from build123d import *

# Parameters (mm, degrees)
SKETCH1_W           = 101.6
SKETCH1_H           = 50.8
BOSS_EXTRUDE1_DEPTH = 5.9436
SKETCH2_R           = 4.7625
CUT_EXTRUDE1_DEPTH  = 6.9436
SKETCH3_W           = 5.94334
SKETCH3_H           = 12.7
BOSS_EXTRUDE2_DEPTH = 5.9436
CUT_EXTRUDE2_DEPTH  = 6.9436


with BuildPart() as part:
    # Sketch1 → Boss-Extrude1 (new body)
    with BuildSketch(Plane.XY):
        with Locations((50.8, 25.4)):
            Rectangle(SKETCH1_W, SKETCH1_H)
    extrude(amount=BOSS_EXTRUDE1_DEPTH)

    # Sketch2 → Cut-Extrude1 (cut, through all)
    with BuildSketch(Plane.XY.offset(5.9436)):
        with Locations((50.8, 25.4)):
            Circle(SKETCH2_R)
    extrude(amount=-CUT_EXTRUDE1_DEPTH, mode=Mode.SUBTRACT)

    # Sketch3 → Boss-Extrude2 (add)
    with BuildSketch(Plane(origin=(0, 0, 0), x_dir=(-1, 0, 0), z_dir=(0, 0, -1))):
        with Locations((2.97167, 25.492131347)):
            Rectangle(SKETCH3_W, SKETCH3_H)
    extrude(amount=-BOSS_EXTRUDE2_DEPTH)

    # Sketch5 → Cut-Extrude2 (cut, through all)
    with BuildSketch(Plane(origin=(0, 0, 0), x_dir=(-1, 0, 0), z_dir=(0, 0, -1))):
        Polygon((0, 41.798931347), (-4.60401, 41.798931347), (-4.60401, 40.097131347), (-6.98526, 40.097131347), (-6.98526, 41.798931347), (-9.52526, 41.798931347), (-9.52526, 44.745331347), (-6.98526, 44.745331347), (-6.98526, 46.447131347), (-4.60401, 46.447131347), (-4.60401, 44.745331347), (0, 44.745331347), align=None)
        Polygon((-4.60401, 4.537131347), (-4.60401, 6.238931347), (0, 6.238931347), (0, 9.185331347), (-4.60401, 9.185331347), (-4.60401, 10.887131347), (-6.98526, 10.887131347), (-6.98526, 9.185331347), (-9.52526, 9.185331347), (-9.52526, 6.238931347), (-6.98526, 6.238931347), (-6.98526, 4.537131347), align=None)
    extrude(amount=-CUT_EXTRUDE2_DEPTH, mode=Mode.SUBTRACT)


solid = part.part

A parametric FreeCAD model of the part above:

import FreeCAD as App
import Part
import Sketcher
Q = App.Units.Quantity

doc = App.newDocument("Part")
body = doc.addObject("PartDesign::Body", "Body")

# Sketch on XY plane
sketch1 = doc.addObject("Sketcher::SketchObject", "Sketch")
body.addObject(sketch1)
sketch1.AttachmentSupport = (doc.XY_Plane, [""])
sketch1.MapMode = "FlatFace"
sketch1.addGeometry([
    Part.LineSegment(App.Vector(0, 50.8, 0), App.Vector(0, 0, 0)),
    Part.LineSegment(App.Vector(0, 0, 0), App.Vector(101.6, 0, 0)),
    Part.LineSegment(App.Vector(101.6, 0, 0), App.Vector(101.6, 50.8, 0)),
    Part.LineSegment(App.Vector(101.6, 50.8, 0), App.Vector(0, 50.8, 0)),
], False)
sketch1.addConstraint([
    Sketcher.Constraint("Coincident", 0, 2, 1, 1),
    Sketcher.Constraint("Coincident", 1, 2, 2, 1),
    Sketcher.Constraint("Coincident", 2, 2, 3, 1),
    Sketcher.Constraint("Coincident", 3, 2, 0, 1),
    Sketcher.Constraint("Vertical", 0),
    Sketcher.Constraint("Horizontal", 1),
    Sketcher.Constraint("Vertical", 2),
    Sketcher.Constraint("Horizontal", 3),
    Sketcher.Constraint("Coincident", 0, 2, -1, 1),
    Sketcher.Constraint("DistanceX", 1, 1, 1, 2, Q("4 in")),
    Sketcher.Constraint("DistanceY", 0, 2, 0, 1, Q("2 in")),
])
pad1 = doc.addObject("PartDesign::Pad", "Pad")
body.addObject(pad1)
pad1.Profile = sketch1
pad1.Length = Q("0.234 in")

# Sketch on XY plane
sketch2 = doc.addObject("Sketcher::SketchObject", "Sketch001")
body.addObject(sketch2)
sketch2.AttachmentSupport = (doc.XY_Plane, [""])
sketch2.MapMode = "FlatFace"
sketch2.AttachmentOffset = App.Placement(App.Vector(0, 0, 0.234 * 25.4), App.Rotation())
sketch2.addGeometry(Part.Circle(App.Vector(50.8, 25.4, 0), App.Vector(0, 0, 1), 4.7625), False)
sketch2.addConstraint([
    Sketcher.Constraint("Diameter", 0, Q("0.375 in")),
    Sketcher.Constraint("DistanceX", -1, 1, 0, 3, Q("2 in")),
    Sketcher.Constraint("DistanceY", -1, 1, 0, 3, Q("1 in")),
])
pocket1 = doc.addObject("PartDesign::Pocket", "Pocket")
body.addObject(pocket1)
pocket1.Profile = sketch2
pocket1.Type = "ThroughAll"

# Sketch on XY plane
sketch3 = doc.addObject("Sketcher::SketchObject", "Sketch002")
body.addObject(sketch3)
sketch3.AttachmentSupport = (doc.XY_Plane, [""])
sketch3.MapMode = "FlatFace"
sketch3.addGeometry([
    Part.LineSegment(App.Vector(0, 31.842131, 0), App.Vector(0, 19.142131, 0)),
    Part.LineSegment(App.Vector(0, 19.142131, 0), App.Vector(-5.94334, 19.142131, 0)),
    Part.LineSegment(App.Vector(-5.94334, 19.142131, 0), App.Vector(-5.94334, 31.842131, 0)),
    Part.LineSegment(App.Vector(-5.94334, 31.842131, 0), App.Vector(0, 31.842131, 0)),
], False)
sketch3.addConstraint([
    Sketcher.Constraint("Coincident", 0, 2, 1, 1),
    Sketcher.Constraint("Coincident", 1, 2, 2, 1),
    Sketcher.Constraint("Coincident", 2, 2, 3, 1),
    Sketcher.Constraint("Coincident", 3, 2, 0, 1),
    Sketcher.Constraint("Vertical", 0),
    Sketcher.Constraint("Horizontal", 1),
    Sketcher.Constraint("Vertical", 2),
    Sketcher.Constraint("Horizontal", 3),
    Sketcher.Constraint("PointOnObject", 0, 2, -2),
    Sketcher.Constraint("DistanceY", 0, 2, 0, 1, Q("0.5 in")),
    Sketcher.Constraint("DistanceX", 1, 2, 1, 1, 5.94334),
    Sketcher.Constraint("DistanceY", -1, 1, 0, 2, 19.142131),
])
pad2 = doc.addObject("PartDesign::Pad", "Pad001")
body.addObject(pad2)
pad2.Profile = sketch3
pad2.Length = Q("0.234 in")

# Sketch on XY plane
sketch4 = doc.addObject("Sketcher::SketchObject", "Sketch003")
body.addObject(sketch4)
sketch4.AttachmentSupport = (doc.XY_Plane, [""])
sketch4.MapMode = "FlatFace"
sketch4.addGeometry([
    Part.LineSegment(App.Vector(4.60401, 41.798931, 0), App.Vector(0, 41.798931, 0)),  # 0
    Part.LineSegment(App.Vector(0, 41.798931, 0), App.Vector(0, 44.745331, 0)),  # 1
    Part.LineSegment(App.Vector(0, 44.745331, 0), App.Vector(4.60401, 44.745331, 0)),  # 2
    Part.LineSegment(App.Vector(4.60401, 44.745331, 0), App.Vector(4.60401, 46.447131, 0)),  # 3
    Part.LineSegment(App.Vector(4.60401, 46.447131, 0), App.Vector(6.98526, 46.447131, 0)),  # 4
    Part.LineSegment(App.Vector(6.98526, 46.447131, 0), App.Vector(6.98526, 44.745331, 0)),  # 5
    Part.LineSegment(App.Vector(6.98526, 44.745331, 0), App.Vector(9.52526, 44.745331, 0)),  # 6
    Part.LineSegment(App.Vector(9.52526, 44.745331, 0), App.Vector(9.52526, 41.798931, 0)),  # 7
    Part.LineSegment(App.Vector(9.52526, 41.798931, 0), App.Vector(6.98526, 41.798931, 0)),  # 8
    Part.LineSegment(App.Vector(6.98526, 41.798931, 0), App.Vector(6.98526, 40.097131, 0)),  # 9
    Part.LineSegment(App.Vector(6.98526, 40.097131, 0), App.Vector(4.60401, 40.097131, 0)),  # 10
    Part.LineSegment(App.Vector(4.60401, 40.097131, 0), App.Vector(4.60401, 41.798931, 0)),  # 11
    Part.LineSegment(App.Vector(4.60401, 4.537131, 0), App.Vector(4.60401, 6.238931, 0)),  # 12
    Part.LineSegment(App.Vector(4.60401, 6.238931, 0), App.Vector(0, 6.238931, 0)),  # 13
    Part.LineSegment(App.Vector(0, 6.238931, 0), App.Vector(0, 9.185331, 0)),  # 14
    Part.LineSegment(App.Vector(0, 9.185331, 0), App.Vector(4.60401, 9.185331, 0)),  # 15
    Part.LineSegment(App.Vector(4.60401, 9.185331, 0), App.Vector(4.60401, 10.887131, 0)),  # 16
    Part.LineSegment(App.Vector(4.60401, 10.887131, 0), App.Vector(6.98526, 10.887131, 0)),  # 17
    Part.LineSegment(App.Vector(6.98526, 10.887131, 0), App.Vector(6.98526, 9.185331, 0)),  # 18
    Part.LineSegment(App.Vector(6.98526, 9.185331, 0), App.Vector(9.52526, 9.185331, 0)),  # 19
    Part.LineSegment(App.Vector(9.52526, 9.185331, 0), App.Vector(9.52526, 6.238931, 0)),  # 20
    Part.LineSegment(App.Vector(9.52526, 6.238931, 0), App.Vector(6.98526, 6.238931, 0)),  # 21
    Part.LineSegment(App.Vector(6.98526, 6.238931, 0), App.Vector(6.98526, 4.537131, 0)),  # 22
    Part.LineSegment(App.Vector(6.98526, 4.537131, 0), App.Vector(4.60401, 4.537131, 0)),  # 23
], False)
sketch4.addConstraint([
    Sketcher.Constraint("Coincident", 0, 2, 1, 1),
    Sketcher.Constraint("Coincident", 1, 2, 2, 1),
    Sketcher.Constraint("Coincident", 2, 2, 3, 1),
    Sketcher.Constraint("Coincident", 3, 2, 4, 1),
    Sketcher.Constraint("Coincident", 4, 2, 5, 1),
    Sketcher.Constraint("Coincident", 5, 2, 6, 1),
    Sketcher.Constraint("Coincident", 6, 2, 7, 1),
    Sketcher.Constraint("Coincident", 7, 2, 8, 1),
    Sketcher.Constraint("Coincident", 8, 2, 9, 1),
    Sketcher.Constraint("Coincident", 9, 2, 10, 1),
    Sketcher.Constraint("Coincident", 10, 2, 11, 1),
    Sketcher.Constraint("Coincident", 11, 2, 0, 1),
    Sketcher.Constraint("Coincident", 12, 2, 13, 1),
    Sketcher.Constraint("Coincident", 13, 2, 14, 1),
    Sketcher.Constraint("Coincident", 14, 2, 15, 1),
    Sketcher.Constraint("Coincident", 15, 2, 16, 1),
    Sketcher.Constraint("Coincident", 16, 2, 17, 1),
    Sketcher.Constraint("Coincident", 17, 2, 18, 1),
    Sketcher.Constraint("Coincident", 18, 2, 19, 1),
    Sketcher.Constraint("Coincident", 19, 2, 20, 1),
    Sketcher.Constraint("Coincident", 20, 2, 21, 1),
    Sketcher.Constraint("Coincident", 21, 2, 22, 1),
    Sketcher.Constraint("Coincident", 22, 2, 23, 1),
    Sketcher.Constraint("Coincident", 23, 2, 12, 1),
    Sketcher.Constraint("Horizontal", 0),
    Sketcher.Constraint("Vertical", 1),
    Sketcher.Constraint("Horizontal", 2),
    Sketcher.Constraint("Vertical", 3),
    Sketcher.Constraint("Horizontal", 4),
    Sketcher.Constraint("Vertical", 5),
    Sketcher.Constraint("Horizontal", 6),
    Sketcher.Constraint("Vertical", 7),
    Sketcher.Constraint("Horizontal", 8),
    Sketcher.Constraint("Vertical", 9),
    Sketcher.Constraint("Horizontal", 10),
    Sketcher.Constraint("Vertical", 11),
    Sketcher.Constraint("Vertical", 12),
    Sketcher.Constraint("Horizontal", 13),
    Sketcher.Constraint("Vertical", 14),
    Sketcher.Constraint("Horizontal", 15),
    Sketcher.Constraint("Vertical", 16),
    Sketcher.Constraint("Horizontal", 17),
    Sketcher.Constraint("Vertical", 18),
    Sketcher.Constraint("Horizontal", 19),
    Sketcher.Constraint("Vertical", 20),
    Sketcher.Constraint("Horizontal", 21),
    Sketcher.Constraint("Vertical", 22),
    Sketcher.Constraint("Horizontal", 23),
    Sketcher.Constraint("PointOnObject", 0, 2, -2),
    Sketcher.Constraint("PointOnObject", 13, 2, -2),
    Sketcher.Constraint("Horizontal", 2, 2, 5, 2),
    Sketcher.Constraint("Horizontal", 0, 2, 7, 2),
    Sketcher.Constraint("Horizontal", 15, 2, 18, 2),
    Sketcher.Constraint("Horizontal", 13, 2, 20, 2),
    Sketcher.Constraint("Vertical", 5, 2, 8, 2),
    Sketcher.Constraint("Vertical", 3, 2, 10, 2),
    Sketcher.Constraint("Vertical", 11, 2, 12, 2),
    Sketcher.Constraint("Vertical", 12, 2, 15, 2),
    Sketcher.Constraint("Vertical", 9, 2, 17, 2),
    Sketcher.Constraint("Vertical", 7, 2, 19, 2),
    Sketcher.Constraint("Vertical", 18, 2, 21, 2),
    Sketcher.Constraint("Equal", 5, 9),
    Sketcher.Constraint("Equal", 11, 12),
    Sketcher.Constraint("Equal", 7, 14),
    Sketcher.Constraint("Equal", 12, 16),
    Sketcher.Constraint("DistanceX", 6, 1, 6, 2, Q("0.1 in")),
    Sketcher.Constraint("DistanceY", 12, 2, 11, 2, Q("1.4 in")),
    Sketcher.Constraint("DistanceX", 4, 1, 4, 2, Q("0.09375 in")),
    Sketcher.Constraint("DistanceY", 1, 1, 1, 2, Q("0.116 in")),
    Sketcher.Constraint("DistanceY", 3, 1, 3, 2, Q("0.067 in")),
    Sketcher.Constraint("DistanceX", 0, 2, 0, 1, 4.60401),
    Sketcher.Constraint("DistanceY", -1, 1, 0, 2, 41.798931),
])
pocket2 = doc.addObject("PartDesign::Pocket", "Pocket001")
body.addObject(pocket2)
pocket2.Profile = sketch4
pocket2.Type = "ThroughAll"
pocket2.Reversed = True

doc.recompute()
